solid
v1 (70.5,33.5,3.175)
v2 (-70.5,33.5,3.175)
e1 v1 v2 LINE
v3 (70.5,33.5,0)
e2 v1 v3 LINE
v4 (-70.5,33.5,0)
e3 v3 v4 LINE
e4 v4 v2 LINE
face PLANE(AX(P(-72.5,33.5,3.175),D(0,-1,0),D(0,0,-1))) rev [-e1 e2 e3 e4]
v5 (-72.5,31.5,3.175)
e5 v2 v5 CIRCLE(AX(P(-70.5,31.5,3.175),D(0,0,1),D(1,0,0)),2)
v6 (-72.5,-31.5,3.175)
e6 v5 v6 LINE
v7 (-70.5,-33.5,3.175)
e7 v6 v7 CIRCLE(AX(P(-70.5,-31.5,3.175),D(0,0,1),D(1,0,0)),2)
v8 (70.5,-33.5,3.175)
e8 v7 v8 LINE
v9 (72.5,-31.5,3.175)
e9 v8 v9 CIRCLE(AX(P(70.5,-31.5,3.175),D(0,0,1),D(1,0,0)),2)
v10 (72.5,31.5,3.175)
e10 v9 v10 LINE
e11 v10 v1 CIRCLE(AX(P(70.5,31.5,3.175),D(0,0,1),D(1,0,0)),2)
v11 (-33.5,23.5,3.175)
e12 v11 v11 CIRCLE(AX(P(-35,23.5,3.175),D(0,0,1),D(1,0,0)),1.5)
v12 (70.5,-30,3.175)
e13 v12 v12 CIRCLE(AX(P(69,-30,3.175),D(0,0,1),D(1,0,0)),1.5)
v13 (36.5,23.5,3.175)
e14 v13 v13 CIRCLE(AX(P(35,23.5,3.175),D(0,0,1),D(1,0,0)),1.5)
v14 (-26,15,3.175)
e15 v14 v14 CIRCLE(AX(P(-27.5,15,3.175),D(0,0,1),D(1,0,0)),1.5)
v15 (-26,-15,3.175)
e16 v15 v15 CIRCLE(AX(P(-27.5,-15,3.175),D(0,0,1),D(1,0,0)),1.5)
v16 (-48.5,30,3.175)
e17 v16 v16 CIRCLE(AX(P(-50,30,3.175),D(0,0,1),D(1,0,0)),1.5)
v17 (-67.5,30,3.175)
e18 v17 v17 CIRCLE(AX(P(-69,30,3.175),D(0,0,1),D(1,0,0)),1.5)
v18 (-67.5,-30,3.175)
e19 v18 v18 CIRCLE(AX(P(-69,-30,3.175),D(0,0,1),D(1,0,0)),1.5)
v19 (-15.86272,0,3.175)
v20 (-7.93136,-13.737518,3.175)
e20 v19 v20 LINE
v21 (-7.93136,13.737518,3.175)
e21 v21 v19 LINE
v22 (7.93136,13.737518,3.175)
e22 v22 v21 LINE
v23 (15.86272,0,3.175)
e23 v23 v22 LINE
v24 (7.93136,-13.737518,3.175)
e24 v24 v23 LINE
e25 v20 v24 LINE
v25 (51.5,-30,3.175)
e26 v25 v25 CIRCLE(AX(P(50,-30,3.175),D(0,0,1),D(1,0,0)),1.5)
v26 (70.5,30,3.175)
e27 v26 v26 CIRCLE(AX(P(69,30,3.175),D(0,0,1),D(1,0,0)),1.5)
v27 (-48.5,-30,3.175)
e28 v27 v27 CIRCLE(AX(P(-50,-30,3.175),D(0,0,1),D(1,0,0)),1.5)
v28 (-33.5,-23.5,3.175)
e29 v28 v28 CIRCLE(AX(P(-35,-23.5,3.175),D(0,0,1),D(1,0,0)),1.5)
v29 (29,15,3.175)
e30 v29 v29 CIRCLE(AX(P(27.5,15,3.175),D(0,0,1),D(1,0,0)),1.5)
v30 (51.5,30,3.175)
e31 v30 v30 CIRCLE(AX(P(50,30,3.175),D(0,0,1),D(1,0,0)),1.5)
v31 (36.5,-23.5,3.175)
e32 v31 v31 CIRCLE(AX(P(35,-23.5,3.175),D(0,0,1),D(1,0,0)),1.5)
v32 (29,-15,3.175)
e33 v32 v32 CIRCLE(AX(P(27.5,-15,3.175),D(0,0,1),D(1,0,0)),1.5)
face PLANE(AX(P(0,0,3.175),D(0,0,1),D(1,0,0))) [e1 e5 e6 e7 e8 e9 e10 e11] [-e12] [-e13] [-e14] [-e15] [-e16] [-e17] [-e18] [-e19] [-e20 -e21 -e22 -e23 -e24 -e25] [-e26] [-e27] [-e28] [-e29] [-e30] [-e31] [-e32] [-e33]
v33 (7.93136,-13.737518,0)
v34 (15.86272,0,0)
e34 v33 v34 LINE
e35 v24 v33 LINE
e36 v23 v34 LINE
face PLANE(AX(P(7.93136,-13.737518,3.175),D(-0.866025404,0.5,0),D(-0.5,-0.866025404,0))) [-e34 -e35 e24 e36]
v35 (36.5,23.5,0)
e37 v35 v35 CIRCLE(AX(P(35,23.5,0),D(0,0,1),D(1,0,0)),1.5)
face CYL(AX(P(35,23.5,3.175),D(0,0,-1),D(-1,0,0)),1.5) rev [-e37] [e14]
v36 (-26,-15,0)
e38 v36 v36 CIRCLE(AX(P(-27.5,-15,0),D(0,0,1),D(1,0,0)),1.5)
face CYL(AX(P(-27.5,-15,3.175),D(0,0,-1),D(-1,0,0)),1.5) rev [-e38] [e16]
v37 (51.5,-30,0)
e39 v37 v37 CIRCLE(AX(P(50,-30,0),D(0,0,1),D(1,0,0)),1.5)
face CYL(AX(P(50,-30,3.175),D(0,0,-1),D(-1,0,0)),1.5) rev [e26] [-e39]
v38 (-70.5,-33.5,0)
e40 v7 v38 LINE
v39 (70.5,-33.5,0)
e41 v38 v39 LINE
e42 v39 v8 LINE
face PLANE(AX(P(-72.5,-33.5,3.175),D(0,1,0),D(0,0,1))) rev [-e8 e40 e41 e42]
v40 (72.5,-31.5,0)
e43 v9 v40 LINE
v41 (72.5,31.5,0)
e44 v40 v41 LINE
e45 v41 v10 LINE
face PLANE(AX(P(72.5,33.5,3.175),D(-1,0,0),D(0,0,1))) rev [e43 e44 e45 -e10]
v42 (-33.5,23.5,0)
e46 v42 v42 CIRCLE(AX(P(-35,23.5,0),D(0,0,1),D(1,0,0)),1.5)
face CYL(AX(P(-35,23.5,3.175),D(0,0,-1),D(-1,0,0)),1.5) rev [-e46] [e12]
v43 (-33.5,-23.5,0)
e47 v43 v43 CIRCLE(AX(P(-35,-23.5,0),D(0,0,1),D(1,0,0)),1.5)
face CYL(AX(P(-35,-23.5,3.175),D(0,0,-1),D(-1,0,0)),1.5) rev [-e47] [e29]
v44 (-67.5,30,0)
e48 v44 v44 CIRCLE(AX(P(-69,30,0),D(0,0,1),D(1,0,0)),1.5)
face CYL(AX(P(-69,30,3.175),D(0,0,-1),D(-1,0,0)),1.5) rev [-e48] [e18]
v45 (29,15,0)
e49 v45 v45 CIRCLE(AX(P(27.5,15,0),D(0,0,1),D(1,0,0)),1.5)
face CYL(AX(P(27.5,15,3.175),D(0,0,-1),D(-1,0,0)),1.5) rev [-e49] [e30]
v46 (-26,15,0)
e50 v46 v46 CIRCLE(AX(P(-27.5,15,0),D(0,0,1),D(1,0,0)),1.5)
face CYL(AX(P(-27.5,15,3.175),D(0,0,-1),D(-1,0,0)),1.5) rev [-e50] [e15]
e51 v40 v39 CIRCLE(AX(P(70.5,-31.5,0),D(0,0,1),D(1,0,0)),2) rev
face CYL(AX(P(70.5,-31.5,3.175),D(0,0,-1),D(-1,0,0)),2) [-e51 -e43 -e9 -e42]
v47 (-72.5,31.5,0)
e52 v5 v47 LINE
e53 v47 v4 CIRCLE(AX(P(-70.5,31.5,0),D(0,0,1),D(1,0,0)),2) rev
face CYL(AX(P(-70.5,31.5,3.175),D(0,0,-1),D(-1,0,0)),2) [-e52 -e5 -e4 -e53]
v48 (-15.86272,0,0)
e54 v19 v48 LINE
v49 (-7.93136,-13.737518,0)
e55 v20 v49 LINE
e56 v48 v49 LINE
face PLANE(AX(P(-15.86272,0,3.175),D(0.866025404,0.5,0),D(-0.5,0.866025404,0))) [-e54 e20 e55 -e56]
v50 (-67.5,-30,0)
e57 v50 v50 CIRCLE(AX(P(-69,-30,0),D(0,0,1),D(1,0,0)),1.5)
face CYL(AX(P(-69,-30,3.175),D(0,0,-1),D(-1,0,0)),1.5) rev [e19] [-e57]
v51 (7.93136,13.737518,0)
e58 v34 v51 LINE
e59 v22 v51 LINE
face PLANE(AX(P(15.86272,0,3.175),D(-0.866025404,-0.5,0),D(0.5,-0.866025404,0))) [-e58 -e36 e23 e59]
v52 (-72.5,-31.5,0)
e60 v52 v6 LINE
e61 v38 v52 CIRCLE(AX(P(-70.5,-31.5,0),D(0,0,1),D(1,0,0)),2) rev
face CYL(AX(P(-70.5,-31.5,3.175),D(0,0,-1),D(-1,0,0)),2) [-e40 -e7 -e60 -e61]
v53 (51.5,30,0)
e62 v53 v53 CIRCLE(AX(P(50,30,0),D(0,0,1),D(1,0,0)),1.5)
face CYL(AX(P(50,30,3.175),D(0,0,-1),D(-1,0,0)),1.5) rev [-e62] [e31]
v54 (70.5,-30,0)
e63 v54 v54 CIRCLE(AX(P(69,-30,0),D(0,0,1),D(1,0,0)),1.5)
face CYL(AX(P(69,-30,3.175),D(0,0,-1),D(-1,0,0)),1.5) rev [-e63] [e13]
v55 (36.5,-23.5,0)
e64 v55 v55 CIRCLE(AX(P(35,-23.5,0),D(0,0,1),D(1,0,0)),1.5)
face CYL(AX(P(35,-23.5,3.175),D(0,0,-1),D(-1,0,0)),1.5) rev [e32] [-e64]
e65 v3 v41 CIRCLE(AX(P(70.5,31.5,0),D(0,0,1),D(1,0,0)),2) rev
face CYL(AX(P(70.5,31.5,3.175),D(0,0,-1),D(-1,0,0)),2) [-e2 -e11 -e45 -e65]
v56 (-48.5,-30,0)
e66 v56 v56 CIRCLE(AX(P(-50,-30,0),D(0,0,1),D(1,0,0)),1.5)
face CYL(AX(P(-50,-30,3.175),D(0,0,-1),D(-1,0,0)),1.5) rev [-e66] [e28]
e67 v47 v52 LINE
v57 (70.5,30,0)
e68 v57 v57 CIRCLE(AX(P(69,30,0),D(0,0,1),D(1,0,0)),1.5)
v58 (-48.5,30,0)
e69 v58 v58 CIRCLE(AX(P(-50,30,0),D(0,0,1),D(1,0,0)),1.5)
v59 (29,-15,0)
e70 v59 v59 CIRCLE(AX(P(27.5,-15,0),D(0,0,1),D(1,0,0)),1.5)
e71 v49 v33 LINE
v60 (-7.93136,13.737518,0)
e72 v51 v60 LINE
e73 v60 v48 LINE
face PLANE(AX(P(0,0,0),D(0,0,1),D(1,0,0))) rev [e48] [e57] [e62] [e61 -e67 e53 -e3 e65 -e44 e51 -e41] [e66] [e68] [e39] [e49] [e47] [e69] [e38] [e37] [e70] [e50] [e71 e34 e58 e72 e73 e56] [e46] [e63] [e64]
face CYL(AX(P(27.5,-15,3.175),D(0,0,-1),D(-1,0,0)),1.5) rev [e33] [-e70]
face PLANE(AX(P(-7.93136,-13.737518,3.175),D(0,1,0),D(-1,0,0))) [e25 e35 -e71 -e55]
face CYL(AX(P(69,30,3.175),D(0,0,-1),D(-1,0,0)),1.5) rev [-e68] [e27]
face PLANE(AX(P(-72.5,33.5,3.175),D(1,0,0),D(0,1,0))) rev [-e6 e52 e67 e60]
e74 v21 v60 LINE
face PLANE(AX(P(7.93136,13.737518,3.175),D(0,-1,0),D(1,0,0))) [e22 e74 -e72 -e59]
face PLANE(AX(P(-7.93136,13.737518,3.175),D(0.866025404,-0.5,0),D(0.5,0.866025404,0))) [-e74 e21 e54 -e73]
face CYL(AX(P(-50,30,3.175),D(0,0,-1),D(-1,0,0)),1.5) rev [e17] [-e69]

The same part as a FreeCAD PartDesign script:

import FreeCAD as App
import Part
import Sketcher
Q = App.Units.Quantity


def edges_at(feature, points):
    """Names of the edges that pass closest to the given points."""
    edges = feature.Shape.Edges
    near = lambda p: min(range(len(edges)), key=lambda i: edges[i].distToShape(Part.Vertex(*p))[0])
    return sorted({f"Edge{near(p) + 1}" for p in points})


def add_polygon(sketch, points):
    """Adds a closed chain of lines whose ends are joined by coincident constraints."""
    first, n = sketch.GeometryCount, len(points)
    for a, b in zip(points, points[1:] + points[:1]):
        sketch.addGeometry(Part.LineSegment(App.Vector(*a, 0), App.Vector(*b, 0)), False)
    for i in range(n):
        sketch.addConstraint(Sketcher.Constraint("Coincident", first + i, 2, first + (i + 1) % n, 1))

doc = App.newDocument("Part")
body = doc.addObject("PartDesign::Body", "Body")

sketch1 = body.newObject("Sketcher::SketchObject", "Sketch")
sketch1.AttachmentSupport = (doc.getObject("XY_Plane"), [""])
sketch1.MapMode = "FlatFace"
add_polygon(sketch1, [(-72.5, 33.5), (-72.5, -33.5), (72.5, -33.5), (72.5, 33.5)])
sketch1.addGeometry(Part.Circle(App.Vector(-69, -30, 0), App.Vector(0, 0, 1), 1.5), False)
sketch1.addGeometry(Part.Circle(App.Vector(-50, -30, 0), App.Vector(0, 0, 1), 1.5), False)
sketch1.addGeometry(Part.Circle(App.Vector(-35, -23.5, 0), App.Vector(0, 0, 1), 1.5), False)
sketch1.addGeometry(Part.Circle(App.Vector(-27.5, -15, 0), App.Vector(0, 0, 1), 1.5), False)
sketch1.addGeometry(Part.Circle(App.Vector(35, -23.5, 0), App.Vector(0, 0, 1), 1.5), False)
sketch1.addGeometry(Part.Circle(App.Vector(50, -30, 0), App.Vector(0, 0, 1), 1.5), False)
sketch1.addGeometry(Part.Circle(App.Vector(69, -30, 0), App.Vector(0, 0, 1), 1.5), False)
sketch1.addGeometry(Part.Circle(App.Vector(27.5, -15, 0), App.Vector(0, 0, 1), 1.5), False)
sketch1.addGeometry(Part.Circle(App.Vector(-27.5, 15, 0), App.Vector(0, 0, 1), 1.5), False)
sketch1.addGeometry(Part.Circle(App.Vector(-69, 30, 0), App.Vector(0, 0, 1), 1.5), False)
sketch1.addGeometry(Part.Circle(App.Vector(-50, 30, 0), App.Vector(0, 0, 1), 1.5), False)
sketch1.addGeometry(Part.Circle(App.Vector(-35, 23.5, 0), App.Vector(0, 0, 1), 1.5), False)
add_polygon(sketch1, [(7.9, 13.7), (15.9, 0), (7.9, -13.7), (-7.9, -13.7), (-15.9, 0), (-7.9, 13.7)])
sketch1.addGeometry(Part.Circle(App.Vector(27.5, 15, 0), App.Vector(0, 0, 1), 1.5), False)
sketch1.addGeometry(Part.Circle(App.Vector(35, 23.5, 0), App.Vector(0, 0, 1), 1.5), False)
sketch1.addGeometry(Part.Circle(App.Vector(50, 30, 0), App.Vector(0, 0, 1), 1.5), False)
sketch1.addGeometry(Part.Circle(App.Vector(69, 30, 0), App.Vector(0, 0, 1), 1.5), False)
sketch1.addConstraint(Sketcher.Constraint("Vertical", 0))
sketch1.addConstraint(Sketcher.Constraint("Horizontal", 1))
sketch1.addConstraint(Sketcher.Constraint("Vertical", 2))
sketch1.addConstraint(Sketcher.Constraint("Horizontal", 3))
sketch1.addConstraint(Sketcher.Constraint("Horizontal", 18))
sketch1.addConstraint(Sketcher.Constraint("Horizontal", 21))
sketch1.addConstraint(Sketcher.Constraint("Equal", 4, 5))
sketch1.addConstraint(Sketcher.Constraint("Equal", 5, 6))
sketch1.addConstraint(Sketcher.Constraint("Equal", 6, 7))
sketch1.addConstraint(Sketcher.Constraint("Equal", 7, 8))
sketch1.addConstraint(Sketcher.Constraint("Equal", 8, 9))
sketch1.addConstraint(Sketcher.Constraint("Equal", 9, 10))
sketch1.addConstraint(Sketcher.Constraint("Equal", 10, 11))
sketch1.addConstraint(Sketcher.Constraint("Equal", 11, 12))
sketch1.addConstraint(Sketcher.Constraint("Equal", 12, 13))
sketch1.addConstraint(Sketcher.Constraint("Equal", 13, 14))
sketch1.addConstraint(Sketcher.Constraint("Equal", 14, 15))
sketch1.addConstraint(Sketcher.Constraint("Equal", 15, 22))
sketch1.addConstraint(Sketcher.Constraint("Equal", 22, 23))
sketch1.addConstraint(Sketcher.Constraint("Equal", 23, 24))
sketch1.addConstraint(Sketcher.Constraint("Equal", 24, 25))
sketch1.addConstraint(Sketcher.Constraint("Symmetric", 11, 3, 12, 3, -1, 1))
sketch1.addConstraint(Sketcher.Constraint("Symmetric", 10, 3, 13, 3, -1, 1))
sketch1.addConstraint(Sketcher.Constraint("Symmetric", 9, 3, 14, 3, -1, 1))
sketch1.addConstraint(Sketcher.Constraint("Symmetric", 8, 3, 15, 3, -1, 1))
sketch1.addConstraint(Sketcher.Constraint("Symmetric", 7, 3, 22, 3, -1, 1))
sketch1.addConstraint(Sketcher.Constraint("Symmetric", 6, 3, 23, 3, -1, 1))
sketch1.addConstraint(Sketcher.Constraint("Symmetric", 5, 3, 24, 3, -1, 1))
sketch1.addConstraint(Sketcher.Constraint("Symmetric", 4, 3, 25, 3, -1, 1))
sketch1.addConstraint(Sketcher.Constraint("Symmetric", 0, 2, 2, 2, -1, 1))
sketch1.addConstraint(Sketcher.Constraint("Symmetric", 16, 2, 19, 2, -1, 1))
sketch1.addConstraint(Sketcher.Constraint("Symmetric", 17, 2, 20, 2, -1, 1))
sketch1.addConstraint(Sketcher.Constraint("Symmetric", 6, 3, 8, 3, -2))
sketch1.addConstraint(Sketcher.Constraint("Symmetric", 5, 3, 9, 3, -2))
sketch1.addConstraint(Sketcher.Constraint("Symmetric", 4, 3, 10, 3, -2))
sketch1.addConstraint(Sketcher.Constraint("Symmetric", 7, 3, 11, 3, -2))
sketch1.addConstraint(Sketcher.Constraint("PointOnObject", 16, 2, -1))
sketch1.addConstraint(Sketcher.Constraint("Parallel", 16, 19))
sketch1.addConstraint(Sketcher.Constraint("Horizontal", 4, 3, 5, 3))
sketch1.addConstraint(Sketcher.Constraint("Vertical", 18, 2, 20, 2))
sketch1.addConstraint(Sketcher.Constraint("Diameter", 4, Q("3 mm")))
sketch1.addConstraint(Sketcher.Constraint("DistanceX", 1, 1, 1, 2, Q("145 mm")))
sketch1.addConstraint(Sketcher.Constraint("DistanceY", 0, 2, 0, 1, Q("67 mm")))
sketch1.addConstraint(Sketcher.Constraint("Angle", 16, Q("-60 deg")))
sketch1.addConstraint(Sketcher.Constraint("DistanceX", 4, 3, -1, 1, Q("69 mm")))
sketch1.addConstraint(Sketcher.Constraint("DistanceY", 4, 3, -1, 1, Q("30 mm")))
sketch1.addConstraint(Sketcher.Constraint("DistanceX", 5, 3, -1, 1, Q("50 mm")))
sketch1.addConstraint(Sketcher.Constraint("DistanceX", 6, 3, -1, 1, Q("35 mm")))
sketch1.addConstraint(Sketcher.Constraint("DistanceY", 7, 3, -1, 1, Q("15 mm")))
sketch1.addConstraint(Sketcher.Constraint("DistanceX", 7, 3, 11, 3, Q("55 mm")))
sketch1.addConstraint(Sketcher.Constraint("DistanceY", 6, 3, 15, 3, Q("47 mm")))
sketch1.addConstraint(Sketcher.Constraint("DistanceX", 18, 2, 18, 1, Q("15.86272 mm")))
sketch1.addConstraint(Sketcher.Constraint("Distance", 16, Q("15.86272 mm")))
pad1 = body.newObject("PartDesign::Pad", "Pad")
pad1.Profile = sketch1
pad1.Length = 3.175
doc.recompute()

fillet = body.newObject("PartDesign::Fillet", "Fillet")
fillet.Base = (pad1, edges_at(pad1, [
    (-72.5, 33.5, 1.587),
    (72.5, 33.5, 1.587),
    (72.5, -33.5, 1.587),
    (-72.5, -33.5, 1.587),
]))
fillet.Radius = 2

doc.recompute()
